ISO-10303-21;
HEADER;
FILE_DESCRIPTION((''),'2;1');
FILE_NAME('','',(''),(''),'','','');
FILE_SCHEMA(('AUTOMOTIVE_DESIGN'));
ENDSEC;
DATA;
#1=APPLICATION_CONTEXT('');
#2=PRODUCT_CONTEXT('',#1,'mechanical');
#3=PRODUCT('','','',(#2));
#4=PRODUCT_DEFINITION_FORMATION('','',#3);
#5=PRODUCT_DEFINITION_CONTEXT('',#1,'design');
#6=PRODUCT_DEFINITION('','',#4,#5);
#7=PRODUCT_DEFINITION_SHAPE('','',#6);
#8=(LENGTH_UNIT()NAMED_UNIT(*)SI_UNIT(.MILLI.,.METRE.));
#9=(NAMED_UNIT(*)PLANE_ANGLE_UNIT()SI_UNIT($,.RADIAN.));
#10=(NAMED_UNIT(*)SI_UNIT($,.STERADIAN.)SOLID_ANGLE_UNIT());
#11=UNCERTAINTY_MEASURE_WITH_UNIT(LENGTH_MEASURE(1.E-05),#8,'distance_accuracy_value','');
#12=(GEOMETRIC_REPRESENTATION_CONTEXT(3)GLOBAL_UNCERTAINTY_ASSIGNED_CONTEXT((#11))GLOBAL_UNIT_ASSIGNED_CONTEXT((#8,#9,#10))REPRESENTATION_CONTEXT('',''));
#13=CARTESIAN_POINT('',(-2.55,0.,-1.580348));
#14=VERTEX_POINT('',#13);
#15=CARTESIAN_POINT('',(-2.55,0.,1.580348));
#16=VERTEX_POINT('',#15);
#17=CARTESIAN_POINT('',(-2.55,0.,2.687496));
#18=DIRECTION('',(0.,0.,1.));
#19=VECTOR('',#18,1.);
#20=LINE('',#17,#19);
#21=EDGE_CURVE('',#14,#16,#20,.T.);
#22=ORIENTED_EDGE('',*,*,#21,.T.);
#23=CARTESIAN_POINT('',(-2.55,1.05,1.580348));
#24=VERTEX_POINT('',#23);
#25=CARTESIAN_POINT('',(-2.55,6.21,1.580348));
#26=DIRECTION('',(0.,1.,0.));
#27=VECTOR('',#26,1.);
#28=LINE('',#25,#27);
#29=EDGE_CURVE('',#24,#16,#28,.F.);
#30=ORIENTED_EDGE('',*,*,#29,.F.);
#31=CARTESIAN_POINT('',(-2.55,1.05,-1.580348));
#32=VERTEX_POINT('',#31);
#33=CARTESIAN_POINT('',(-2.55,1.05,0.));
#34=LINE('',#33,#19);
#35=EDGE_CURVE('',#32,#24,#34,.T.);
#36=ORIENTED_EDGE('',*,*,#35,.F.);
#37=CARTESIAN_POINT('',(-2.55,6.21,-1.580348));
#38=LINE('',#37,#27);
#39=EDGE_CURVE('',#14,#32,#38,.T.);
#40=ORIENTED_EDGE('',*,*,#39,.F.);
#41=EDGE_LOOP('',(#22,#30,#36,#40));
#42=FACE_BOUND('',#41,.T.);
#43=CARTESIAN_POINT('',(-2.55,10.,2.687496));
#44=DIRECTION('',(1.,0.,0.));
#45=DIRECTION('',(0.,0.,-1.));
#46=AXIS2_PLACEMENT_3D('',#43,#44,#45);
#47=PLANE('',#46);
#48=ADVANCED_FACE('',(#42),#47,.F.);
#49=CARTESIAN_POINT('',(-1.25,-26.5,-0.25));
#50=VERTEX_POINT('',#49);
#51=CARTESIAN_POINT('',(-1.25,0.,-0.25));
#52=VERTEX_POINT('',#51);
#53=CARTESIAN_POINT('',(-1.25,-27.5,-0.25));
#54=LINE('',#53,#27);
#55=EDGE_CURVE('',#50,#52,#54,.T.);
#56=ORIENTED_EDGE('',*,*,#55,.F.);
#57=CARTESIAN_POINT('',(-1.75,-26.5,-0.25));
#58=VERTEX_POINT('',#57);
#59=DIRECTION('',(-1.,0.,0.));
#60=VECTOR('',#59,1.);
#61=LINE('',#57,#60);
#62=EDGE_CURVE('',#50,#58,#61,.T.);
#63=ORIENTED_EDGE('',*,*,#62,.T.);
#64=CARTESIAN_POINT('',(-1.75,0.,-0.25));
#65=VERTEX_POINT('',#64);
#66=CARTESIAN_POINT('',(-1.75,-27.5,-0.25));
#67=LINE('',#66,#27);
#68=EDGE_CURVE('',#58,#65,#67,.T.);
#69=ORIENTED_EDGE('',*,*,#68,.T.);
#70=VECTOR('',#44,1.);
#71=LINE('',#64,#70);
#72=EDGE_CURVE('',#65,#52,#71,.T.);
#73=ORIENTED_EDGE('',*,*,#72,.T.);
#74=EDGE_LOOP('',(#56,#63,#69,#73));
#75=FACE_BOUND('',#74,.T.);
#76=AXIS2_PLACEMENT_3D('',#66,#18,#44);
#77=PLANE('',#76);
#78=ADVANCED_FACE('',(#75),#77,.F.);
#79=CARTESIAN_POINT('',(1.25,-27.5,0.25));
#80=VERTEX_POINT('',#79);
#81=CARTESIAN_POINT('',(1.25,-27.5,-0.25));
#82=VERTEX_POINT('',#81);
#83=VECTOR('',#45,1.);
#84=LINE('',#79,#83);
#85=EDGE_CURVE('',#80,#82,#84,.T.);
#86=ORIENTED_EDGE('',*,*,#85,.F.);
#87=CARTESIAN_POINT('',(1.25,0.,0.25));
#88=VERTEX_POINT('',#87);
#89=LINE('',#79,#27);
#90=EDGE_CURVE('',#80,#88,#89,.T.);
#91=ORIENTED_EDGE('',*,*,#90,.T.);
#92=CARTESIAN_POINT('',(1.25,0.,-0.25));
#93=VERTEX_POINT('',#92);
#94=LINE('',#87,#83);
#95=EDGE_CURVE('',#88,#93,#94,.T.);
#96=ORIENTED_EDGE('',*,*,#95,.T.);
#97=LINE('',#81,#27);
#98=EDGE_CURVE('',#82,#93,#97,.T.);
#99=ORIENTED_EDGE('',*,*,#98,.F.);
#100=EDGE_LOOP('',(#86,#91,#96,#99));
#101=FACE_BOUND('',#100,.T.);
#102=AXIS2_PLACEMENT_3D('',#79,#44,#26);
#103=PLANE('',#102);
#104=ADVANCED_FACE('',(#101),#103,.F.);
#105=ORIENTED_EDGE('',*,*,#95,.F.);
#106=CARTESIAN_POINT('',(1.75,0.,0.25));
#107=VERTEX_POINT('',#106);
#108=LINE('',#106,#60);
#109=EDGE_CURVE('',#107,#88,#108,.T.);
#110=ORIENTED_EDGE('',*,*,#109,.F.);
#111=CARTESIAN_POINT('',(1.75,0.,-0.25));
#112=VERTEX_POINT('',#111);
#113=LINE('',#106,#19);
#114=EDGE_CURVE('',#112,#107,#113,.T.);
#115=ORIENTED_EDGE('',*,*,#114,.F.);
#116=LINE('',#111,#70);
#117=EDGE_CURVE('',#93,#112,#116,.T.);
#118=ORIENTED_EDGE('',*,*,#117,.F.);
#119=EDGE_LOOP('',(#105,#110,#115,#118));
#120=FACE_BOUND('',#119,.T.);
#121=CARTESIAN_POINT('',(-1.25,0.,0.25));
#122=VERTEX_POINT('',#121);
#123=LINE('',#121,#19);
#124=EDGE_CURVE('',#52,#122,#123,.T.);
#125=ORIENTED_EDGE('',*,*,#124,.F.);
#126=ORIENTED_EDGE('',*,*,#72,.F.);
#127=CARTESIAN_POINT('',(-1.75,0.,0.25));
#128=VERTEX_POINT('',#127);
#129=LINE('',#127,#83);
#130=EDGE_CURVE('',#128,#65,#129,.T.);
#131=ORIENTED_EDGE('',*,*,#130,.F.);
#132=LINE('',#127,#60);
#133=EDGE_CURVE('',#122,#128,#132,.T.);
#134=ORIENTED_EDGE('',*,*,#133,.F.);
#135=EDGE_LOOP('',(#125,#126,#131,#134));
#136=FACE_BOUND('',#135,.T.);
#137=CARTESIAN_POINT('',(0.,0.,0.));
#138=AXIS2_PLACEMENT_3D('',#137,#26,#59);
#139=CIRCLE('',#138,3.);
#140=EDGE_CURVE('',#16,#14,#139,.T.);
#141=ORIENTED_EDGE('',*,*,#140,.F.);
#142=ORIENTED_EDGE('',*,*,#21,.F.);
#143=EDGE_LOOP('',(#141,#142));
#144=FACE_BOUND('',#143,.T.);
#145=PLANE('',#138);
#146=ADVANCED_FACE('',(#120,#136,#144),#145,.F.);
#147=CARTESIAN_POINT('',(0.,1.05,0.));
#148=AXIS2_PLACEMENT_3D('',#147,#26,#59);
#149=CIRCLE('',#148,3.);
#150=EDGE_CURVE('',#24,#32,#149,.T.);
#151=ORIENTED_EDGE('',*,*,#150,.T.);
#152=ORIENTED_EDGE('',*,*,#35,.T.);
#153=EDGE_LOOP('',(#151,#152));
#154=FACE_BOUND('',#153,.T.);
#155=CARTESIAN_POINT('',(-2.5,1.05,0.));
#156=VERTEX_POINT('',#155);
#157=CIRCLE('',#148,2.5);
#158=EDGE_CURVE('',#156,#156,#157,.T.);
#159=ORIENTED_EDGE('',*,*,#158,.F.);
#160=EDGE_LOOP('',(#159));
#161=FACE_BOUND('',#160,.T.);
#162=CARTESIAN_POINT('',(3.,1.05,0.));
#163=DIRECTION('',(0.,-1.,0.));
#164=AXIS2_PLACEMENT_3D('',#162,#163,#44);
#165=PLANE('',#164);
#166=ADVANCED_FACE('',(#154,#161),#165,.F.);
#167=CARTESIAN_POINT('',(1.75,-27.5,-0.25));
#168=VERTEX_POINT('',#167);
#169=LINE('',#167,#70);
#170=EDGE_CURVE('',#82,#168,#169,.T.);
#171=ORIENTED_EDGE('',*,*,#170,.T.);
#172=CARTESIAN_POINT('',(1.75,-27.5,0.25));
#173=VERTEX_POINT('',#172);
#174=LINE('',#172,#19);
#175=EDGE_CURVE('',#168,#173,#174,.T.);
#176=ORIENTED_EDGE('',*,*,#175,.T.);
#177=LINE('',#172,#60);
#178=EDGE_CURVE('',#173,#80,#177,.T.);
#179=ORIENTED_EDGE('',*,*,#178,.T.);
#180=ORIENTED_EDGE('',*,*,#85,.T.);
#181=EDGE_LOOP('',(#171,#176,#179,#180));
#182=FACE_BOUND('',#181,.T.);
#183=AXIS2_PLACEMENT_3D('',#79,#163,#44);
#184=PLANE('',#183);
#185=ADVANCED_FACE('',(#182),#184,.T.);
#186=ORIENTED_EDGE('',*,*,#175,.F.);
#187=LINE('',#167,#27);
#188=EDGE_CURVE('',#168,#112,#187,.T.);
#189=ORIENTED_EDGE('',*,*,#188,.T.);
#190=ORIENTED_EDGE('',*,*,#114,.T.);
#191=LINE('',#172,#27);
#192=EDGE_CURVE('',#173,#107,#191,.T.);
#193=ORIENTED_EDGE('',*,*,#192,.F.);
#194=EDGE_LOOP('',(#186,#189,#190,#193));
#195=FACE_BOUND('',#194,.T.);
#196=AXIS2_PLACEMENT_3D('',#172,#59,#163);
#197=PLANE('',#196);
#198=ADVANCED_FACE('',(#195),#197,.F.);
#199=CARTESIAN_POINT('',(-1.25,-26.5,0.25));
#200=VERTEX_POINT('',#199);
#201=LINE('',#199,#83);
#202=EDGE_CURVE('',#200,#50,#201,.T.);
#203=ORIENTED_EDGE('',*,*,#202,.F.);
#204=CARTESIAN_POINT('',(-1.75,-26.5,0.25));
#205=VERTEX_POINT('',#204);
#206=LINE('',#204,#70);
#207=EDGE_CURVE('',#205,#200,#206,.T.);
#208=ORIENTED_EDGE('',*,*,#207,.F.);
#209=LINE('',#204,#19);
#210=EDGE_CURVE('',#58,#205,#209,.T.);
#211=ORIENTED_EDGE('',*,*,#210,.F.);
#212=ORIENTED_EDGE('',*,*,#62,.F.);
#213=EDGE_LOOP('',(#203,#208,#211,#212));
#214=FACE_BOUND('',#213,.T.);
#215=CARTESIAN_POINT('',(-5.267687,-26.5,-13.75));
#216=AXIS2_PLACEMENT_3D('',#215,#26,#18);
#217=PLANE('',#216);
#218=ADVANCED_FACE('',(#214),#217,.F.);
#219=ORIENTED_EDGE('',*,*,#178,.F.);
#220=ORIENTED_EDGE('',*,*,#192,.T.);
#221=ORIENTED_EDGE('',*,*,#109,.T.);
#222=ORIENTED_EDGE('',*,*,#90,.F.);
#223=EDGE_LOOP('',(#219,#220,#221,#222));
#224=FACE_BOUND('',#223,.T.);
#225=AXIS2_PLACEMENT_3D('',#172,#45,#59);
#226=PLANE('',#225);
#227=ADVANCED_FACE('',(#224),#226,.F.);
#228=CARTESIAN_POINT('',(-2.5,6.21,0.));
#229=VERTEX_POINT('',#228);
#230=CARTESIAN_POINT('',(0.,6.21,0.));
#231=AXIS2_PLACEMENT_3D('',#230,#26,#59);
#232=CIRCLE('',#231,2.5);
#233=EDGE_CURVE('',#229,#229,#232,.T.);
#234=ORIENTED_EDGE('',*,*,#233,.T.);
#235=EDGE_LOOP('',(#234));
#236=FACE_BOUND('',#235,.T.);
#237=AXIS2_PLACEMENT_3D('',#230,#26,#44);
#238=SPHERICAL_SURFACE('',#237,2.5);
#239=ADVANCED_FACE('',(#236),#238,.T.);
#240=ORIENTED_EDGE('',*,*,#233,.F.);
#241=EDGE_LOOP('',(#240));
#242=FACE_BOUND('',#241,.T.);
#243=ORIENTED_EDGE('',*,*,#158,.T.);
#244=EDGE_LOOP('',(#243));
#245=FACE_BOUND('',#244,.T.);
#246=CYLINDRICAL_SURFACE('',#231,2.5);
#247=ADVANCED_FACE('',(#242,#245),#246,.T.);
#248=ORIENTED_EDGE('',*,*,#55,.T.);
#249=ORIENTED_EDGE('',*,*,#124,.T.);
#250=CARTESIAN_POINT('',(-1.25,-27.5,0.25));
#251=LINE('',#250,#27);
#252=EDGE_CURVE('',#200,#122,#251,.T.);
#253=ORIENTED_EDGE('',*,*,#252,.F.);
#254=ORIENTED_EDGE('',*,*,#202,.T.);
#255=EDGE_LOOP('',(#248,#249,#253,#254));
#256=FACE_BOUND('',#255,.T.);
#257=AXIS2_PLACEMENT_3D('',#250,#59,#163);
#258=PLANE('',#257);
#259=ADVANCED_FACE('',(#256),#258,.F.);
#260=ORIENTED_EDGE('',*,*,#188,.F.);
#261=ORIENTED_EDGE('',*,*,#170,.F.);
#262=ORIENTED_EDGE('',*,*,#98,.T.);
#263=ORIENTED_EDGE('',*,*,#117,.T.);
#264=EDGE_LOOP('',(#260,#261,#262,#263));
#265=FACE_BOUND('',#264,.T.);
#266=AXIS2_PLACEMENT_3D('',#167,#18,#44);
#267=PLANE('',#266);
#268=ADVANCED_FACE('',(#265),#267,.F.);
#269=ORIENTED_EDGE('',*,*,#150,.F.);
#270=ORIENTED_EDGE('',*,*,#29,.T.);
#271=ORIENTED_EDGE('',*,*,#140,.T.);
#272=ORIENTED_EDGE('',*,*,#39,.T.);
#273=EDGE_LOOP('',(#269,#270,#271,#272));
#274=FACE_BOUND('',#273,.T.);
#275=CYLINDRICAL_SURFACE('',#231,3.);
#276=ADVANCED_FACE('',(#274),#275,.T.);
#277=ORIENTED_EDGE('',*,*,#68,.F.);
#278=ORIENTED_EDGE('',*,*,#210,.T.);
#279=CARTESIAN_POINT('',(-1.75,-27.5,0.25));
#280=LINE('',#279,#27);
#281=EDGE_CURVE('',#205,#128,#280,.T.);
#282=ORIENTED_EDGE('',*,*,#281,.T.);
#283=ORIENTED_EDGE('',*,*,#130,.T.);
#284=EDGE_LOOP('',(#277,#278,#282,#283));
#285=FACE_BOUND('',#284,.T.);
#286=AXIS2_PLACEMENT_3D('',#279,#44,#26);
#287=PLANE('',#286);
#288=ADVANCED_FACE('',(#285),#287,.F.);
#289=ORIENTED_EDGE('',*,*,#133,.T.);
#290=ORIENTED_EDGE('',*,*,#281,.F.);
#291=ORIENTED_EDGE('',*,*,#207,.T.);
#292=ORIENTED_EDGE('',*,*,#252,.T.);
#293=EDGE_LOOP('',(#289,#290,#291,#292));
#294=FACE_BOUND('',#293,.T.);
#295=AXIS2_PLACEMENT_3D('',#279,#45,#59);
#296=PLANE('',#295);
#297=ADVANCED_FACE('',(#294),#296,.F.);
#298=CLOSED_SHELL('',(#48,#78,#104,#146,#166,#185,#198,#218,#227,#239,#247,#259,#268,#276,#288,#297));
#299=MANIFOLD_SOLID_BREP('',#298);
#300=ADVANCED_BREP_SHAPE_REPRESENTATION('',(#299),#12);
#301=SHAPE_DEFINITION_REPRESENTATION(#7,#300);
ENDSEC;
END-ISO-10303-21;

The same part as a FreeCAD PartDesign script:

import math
import FreeCAD as App
import Part
import Sketcher

doc = App.newDocument("Part")
body = doc.addObject("PartDesign::Body", "Body")

# Sketch on XY plane
sketch1 = body.newObject("Sketcher::SketchObject", "Sketch")
sketch1.AttachmentSupport = (doc.getObject("XY_Plane"), [""])
sketch1.MapMode = "FlatFace"
sketch1.addGeometry(Part.LineSegment(App.Vector(0, 0, 0), App.Vector(3, 0, 0)), False)
sketch1.addGeometry(Part.LineSegment(App.Vector(3, 0, 0), App.Vector(3, 1.1, 0)), False)
sketch1.addGeometry(Part.LineSegment(App.Vector(3, 1.1, 0), App.Vector(2.5, 1.1, 0)), False)
sketch1.addGeometry(Part.LineSegment(App.Vector(2.5, 1.1, 0), App.Vector(2.5, 6.2, 0)), False)
sketch1.addGeometry(Part.ArcOfCircle(Part.Circle(App.Vector(0, 6.2, 0), App.Vector(0, 0, 1), 2.5), math.radians(0), math.radians(90)), False)
sketch1.addGeometry(Part.LineSegment(App.Vector(0, 8.7, 0), App.Vector(0, 0, 0)), False)
sketch1.addConstraint(Sketcher.Constraint("Coincident", 0, 2, 1, 1))
sketch1.addConstraint(Sketcher.Constraint("Coincident", 1, 2, 2, 1))
sketch1.addConstraint(Sketcher.Constraint("Coincident", 2, 2, 3, 1))
sketch1.addConstraint(Sketcher.Constraint("Tangent", 3, 2, 4, 1))
sketch1.addConstraint(Sketcher.Constraint("Coincident", 4, 2, 5, 1))
sketch1.addConstraint(Sketcher.Constraint("Coincident", 5, 2, 0, 1))
sketch1.addConstraint(Sketcher.Constraint("Horizontal", 0))
sketch1.addConstraint(Sketcher.Constraint("Vertical", 1))
sketch1.addConstraint(Sketcher.Constraint("Horizontal", 2))
sketch1.addConstraint(Sketcher.Constraint("Vertical", 3))
sketch1.addConstraint(Sketcher.Constraint("Vertical", 5))
sketch1.addConstraint(Sketcher.Constraint("Coincident", 5, 2, -1, 1))
sketch1.addConstraint(Sketcher.Constraint("PointOnObject", 4, 3, -2))
sketch1.addConstraint(Sketcher.Constraint("Radius", 4, 2.5))
sketch1.addConstraint(Sketcher.Constraint("DistanceX", 0, 1, 0, 2, 3.0))
sketch1.addConstraint(Sketcher.Constraint("DistanceY", 1, 1, 1, 2, 1.05))
sketch1.addConstraint(Sketcher.Constraint("DistanceY", 3, 1, 3, 2, 5.16))
revolution = body.newObject("PartDesign::Revolution", "Revolution")
revolution.Profile = sketch1
revolution.ReferenceAxis = (sketch1, ["V_Axis"])
revolution.Angle = 360

# Sketch on XZ plane
sketch2 = body.newObject("Sketcher::SketchObject", "Sketch001")
sketch2.AttachmentSupport = (doc.getObject("XZ_Plane"), [""])
sketch2.MapMode = "FlatFace"
sketch2.addGeometry(Part.LineSegment(App.Vector(-5.6, 2.7, 0), App.Vector(-5.6, -4.8, 0)), False)
sketch2.addGeometry(Part.LineSegment(App.Vector(-5.6, -4.8, 0), App.Vector(-2.5, -4.8, 0)), False)
sketch2.addGeometry(Part.LineSegment(App.Vector(-2.5, -4.8, 0), App.Vector(-2.5, 2.7, 0)), False)
sketch2.addGeometry(Part.LineSegment(App.Vector(-2.5, 2.7, 0), App.Vector(-5.6, 2.7, 0)), False)
sketch2.addConstraint(Sketcher.Constraint("Coincident", 0, 2, 1, 1))
sketch2.addConstraint(Sketcher.Constraint("Coincident", 1, 2, 2, 1))
sketch2.addConstraint(Sketcher.Constraint("Coincident", 2, 2, 3, 1))
sketch2.addConstraint(Sketcher.Constraint("Coincident", 3, 2, 0, 1))
sketch2.addConstraint(Sketcher.Constraint("Vertical", 0))
sketch2.addConstraint(Sketcher.Constraint("Horizontal", 1))
sketch2.addConstraint(Sketcher.Constraint("Vertical", 2))
sketch2.addConstraint(Sketcher.Constraint("Horizontal", 3))
sketch2.addConstraint(Sketcher.Constraint("DistanceX", 1, 2, -1, 1, 2.55))
sketch2.addConstraint(Sketcher.Constraint("DistanceX", 1, 1, 1, 2, 3.020656))
sketch2.addConstraint(Sketcher.Constraint("DistanceY", 0, 2, 0, 1, 7.518325))
sketch2.addConstraint(Sketcher.Constraint("DistanceY", 0, 2, -1, 1, 4.830829))
pocket1 = body.newObject("PartDesign::Pocket", "Pocket")
pocket1.Profile = sketch2
pocket1.Length = 10

# Sketch on XZ plane
sketch3 = body.newObject("Sketcher::SketchObject", "Sketch002")
sketch3.AttachmentSupport = (doc.getObject("XZ_Plane"), [""])
sketch3.MapMode = "FlatFace"
sketch3.addGeometry(Part.LineSegment(App.Vector(-1.8, 0.2, 0), App.Vector(-1.8, -0.2, 0)), False)
sketch3.addGeometry(Part.LineSegment(App.Vector(-1.8, -0.2, 0), App.Vector(-1.2, -0.2, 0)), False)
sketch3.addGeometry(Part.LineSegment(App.Vector(-1.2, -0.2, 0), App.Vector(-1.2, 0.2, 0)), False)
sketch3.addGeometry(Part.LineSegment(App.Vector(-1.2, 0.2, 0), App.Vector(-1.8, 0.2, 0)), False)
sketch3.addGeometry(Part.LineSegment(App.Vector(1.2, 0.2, 0), App.Vector(1.2, -0.2, 0)), False)
sketch3.addGeometry(Part.LineSegment(App.Vector(1.2, -0.2, 0), App.Vector(1.8, -0.2, 0)), False)
sketch3.addGeometry(Part.LineSegment(App.Vector(1.8, -0.2, 0), App.Vector(1.8, 0.2, 0)), False)
sketch3.addGeometry(Part.LineSegment(App.Vector(1.8, 0.2, 0), App.Vector(1.2, 0.2, 0)), False)
sketch3.addConstraint(Sketcher.Constraint("Coincident", 0, 2, 1, 1))
sketch3.addConstraint(Sketcher.Constraint("Coincident", 1, 2, 2, 1))
sketch3.addConstraint(Sketcher.Constraint("Coincident", 2, 2, 3, 1))
sketch3.addConstraint(Sketcher.Constraint("Coincident", 3, 2, 0, 1))
sketch3.addConstraint(Sketcher.Constraint("Coincident", 4, 2, 5, 1))
sketch3.addConstraint(Sketcher.Constraint("Coincident", 5, 2, 6, 1))
sketch3.addConstraint(Sketcher.Constraint("Coincident", 6, 2, 7, 1))
sketch3.addConstraint(Sketcher.Constraint("Coincident", 7, 2, 4, 1))
sketch3.addConstraint(Sketcher.Constraint("Vertical", 0))
sketch3.addConstraint(Sketcher.Constraint("Horizontal", 1))
sketch3.addConstraint(Sketcher.Constraint("Vertical", 2))
sketch3.addConstraint(Sketcher.Constraint("Horizontal", 3))
sketch3.addConstraint(Sketcher.Constraint("Vertical", 4))
sketch3.addConstraint(Sketcher.Constraint("Horizontal", 5))
sketch3.addConstraint(Sketcher.Constraint("Vertical", 6))
sketch3.addConstraint(Sketcher.Constraint("Horizontal", 7))
sketch3.addConstraint(Sketcher.Constraint("Symmetric", 2, 2, 4, 2, -1, 1))
sketch3.addConstraint(Sketcher.Constraint("Symmetric", 0, 2, 6, 2, -1, 1))
sketch3.addConstraint(Sketcher.Constraint("Horizontal", 1, 2, 4, 2))
sketch3.addConstraint(Sketcher.Constraint("Equal", 7, 0))
sketch3.addConstraint(Sketcher.Constraint("DistanceX", 1, 1, 1, 2, 0.5))
sketch3.addConstraint(Sketcher.Constraint("DistanceX", 0, 2, 4, 2, 3.0))
pad1 = body.newObject("PartDesign::Pad", "Pad")
pad1.Profile = sketch3
pad1.Length = 27.5

# Sketch on XY plane
sketch4 = body.newObject("Sketcher::SketchObject", "Sketch003")
sketch4.AttachmentSupport = (doc.getObject("XY_Plane"), [""])
sketch4.MapMode = "FlatFace"
sketch4.addGeometry(Part.LineSegment(App.Vector(-5.3, -26.5, 0), App.Vector(-5.3, -29.6, 0)), False)
sketch4.addGeometry(Part.LineSegment(App.Vector(-5.3, -29.6, 0), App.Vector(0, -29.6, 0)), False)
sketch4.addGeometry(Part.LineSegment(App.Vector(0, -29.6, 0), App.Vector(0, -26.5, 0)), False)
sketch4.addGeometry(Part.LineSegment(App.Vector(0, -26.5, 0), App.Vector(-5.3, -26.5, 0)), False)
sketch4.addConstraint(Sketcher.Constraint("Coincident", 0, 2, 1, 1))
sketch4.addConstraint(Sketcher.Constraint("Coincident", 1, 2, 2, 1))
sketch4.addConstraint(Sketcher.Constraint("Coincident", 2, 2, 3, 1))
sketch4.addConstraint(Sketcher.Constraint("Coincident", 3, 2, 0, 1))
sketch4.addConstraint(Sketcher.Constraint("Vertical", 0))
sketch4.addConstraint(Sketcher.Constraint("Horizontal", 1))
sketch4.addConstraint(Sketcher.Constraint("Vertical", 2))
sketch4.addConstraint(Sketcher.Constraint("Horizontal", 3))
sketch4.addConstraint(Sketcher.Constraint("PointOnObject", 1, 2, -2))
sketch4.addConstraint(Sketcher.Constraint("DistanceY", 2, 2, -1, 1, 26.5))
sketch4.addConstraint(Sketcher.Constraint("DistanceY", 0, 2, 0, 1, 3.125919))
sketch4.addConstraint(Sketcher.Constraint("DistanceX", 1, 1, 1, 2, 5.267687))
pocket2 = body.newObject("PartDesign::Pocket", "Pocket001")
pocket2.Profile = sketch4
pocket2.Length = 27.5
pocket2.Midplane = True

doc.recompute()
